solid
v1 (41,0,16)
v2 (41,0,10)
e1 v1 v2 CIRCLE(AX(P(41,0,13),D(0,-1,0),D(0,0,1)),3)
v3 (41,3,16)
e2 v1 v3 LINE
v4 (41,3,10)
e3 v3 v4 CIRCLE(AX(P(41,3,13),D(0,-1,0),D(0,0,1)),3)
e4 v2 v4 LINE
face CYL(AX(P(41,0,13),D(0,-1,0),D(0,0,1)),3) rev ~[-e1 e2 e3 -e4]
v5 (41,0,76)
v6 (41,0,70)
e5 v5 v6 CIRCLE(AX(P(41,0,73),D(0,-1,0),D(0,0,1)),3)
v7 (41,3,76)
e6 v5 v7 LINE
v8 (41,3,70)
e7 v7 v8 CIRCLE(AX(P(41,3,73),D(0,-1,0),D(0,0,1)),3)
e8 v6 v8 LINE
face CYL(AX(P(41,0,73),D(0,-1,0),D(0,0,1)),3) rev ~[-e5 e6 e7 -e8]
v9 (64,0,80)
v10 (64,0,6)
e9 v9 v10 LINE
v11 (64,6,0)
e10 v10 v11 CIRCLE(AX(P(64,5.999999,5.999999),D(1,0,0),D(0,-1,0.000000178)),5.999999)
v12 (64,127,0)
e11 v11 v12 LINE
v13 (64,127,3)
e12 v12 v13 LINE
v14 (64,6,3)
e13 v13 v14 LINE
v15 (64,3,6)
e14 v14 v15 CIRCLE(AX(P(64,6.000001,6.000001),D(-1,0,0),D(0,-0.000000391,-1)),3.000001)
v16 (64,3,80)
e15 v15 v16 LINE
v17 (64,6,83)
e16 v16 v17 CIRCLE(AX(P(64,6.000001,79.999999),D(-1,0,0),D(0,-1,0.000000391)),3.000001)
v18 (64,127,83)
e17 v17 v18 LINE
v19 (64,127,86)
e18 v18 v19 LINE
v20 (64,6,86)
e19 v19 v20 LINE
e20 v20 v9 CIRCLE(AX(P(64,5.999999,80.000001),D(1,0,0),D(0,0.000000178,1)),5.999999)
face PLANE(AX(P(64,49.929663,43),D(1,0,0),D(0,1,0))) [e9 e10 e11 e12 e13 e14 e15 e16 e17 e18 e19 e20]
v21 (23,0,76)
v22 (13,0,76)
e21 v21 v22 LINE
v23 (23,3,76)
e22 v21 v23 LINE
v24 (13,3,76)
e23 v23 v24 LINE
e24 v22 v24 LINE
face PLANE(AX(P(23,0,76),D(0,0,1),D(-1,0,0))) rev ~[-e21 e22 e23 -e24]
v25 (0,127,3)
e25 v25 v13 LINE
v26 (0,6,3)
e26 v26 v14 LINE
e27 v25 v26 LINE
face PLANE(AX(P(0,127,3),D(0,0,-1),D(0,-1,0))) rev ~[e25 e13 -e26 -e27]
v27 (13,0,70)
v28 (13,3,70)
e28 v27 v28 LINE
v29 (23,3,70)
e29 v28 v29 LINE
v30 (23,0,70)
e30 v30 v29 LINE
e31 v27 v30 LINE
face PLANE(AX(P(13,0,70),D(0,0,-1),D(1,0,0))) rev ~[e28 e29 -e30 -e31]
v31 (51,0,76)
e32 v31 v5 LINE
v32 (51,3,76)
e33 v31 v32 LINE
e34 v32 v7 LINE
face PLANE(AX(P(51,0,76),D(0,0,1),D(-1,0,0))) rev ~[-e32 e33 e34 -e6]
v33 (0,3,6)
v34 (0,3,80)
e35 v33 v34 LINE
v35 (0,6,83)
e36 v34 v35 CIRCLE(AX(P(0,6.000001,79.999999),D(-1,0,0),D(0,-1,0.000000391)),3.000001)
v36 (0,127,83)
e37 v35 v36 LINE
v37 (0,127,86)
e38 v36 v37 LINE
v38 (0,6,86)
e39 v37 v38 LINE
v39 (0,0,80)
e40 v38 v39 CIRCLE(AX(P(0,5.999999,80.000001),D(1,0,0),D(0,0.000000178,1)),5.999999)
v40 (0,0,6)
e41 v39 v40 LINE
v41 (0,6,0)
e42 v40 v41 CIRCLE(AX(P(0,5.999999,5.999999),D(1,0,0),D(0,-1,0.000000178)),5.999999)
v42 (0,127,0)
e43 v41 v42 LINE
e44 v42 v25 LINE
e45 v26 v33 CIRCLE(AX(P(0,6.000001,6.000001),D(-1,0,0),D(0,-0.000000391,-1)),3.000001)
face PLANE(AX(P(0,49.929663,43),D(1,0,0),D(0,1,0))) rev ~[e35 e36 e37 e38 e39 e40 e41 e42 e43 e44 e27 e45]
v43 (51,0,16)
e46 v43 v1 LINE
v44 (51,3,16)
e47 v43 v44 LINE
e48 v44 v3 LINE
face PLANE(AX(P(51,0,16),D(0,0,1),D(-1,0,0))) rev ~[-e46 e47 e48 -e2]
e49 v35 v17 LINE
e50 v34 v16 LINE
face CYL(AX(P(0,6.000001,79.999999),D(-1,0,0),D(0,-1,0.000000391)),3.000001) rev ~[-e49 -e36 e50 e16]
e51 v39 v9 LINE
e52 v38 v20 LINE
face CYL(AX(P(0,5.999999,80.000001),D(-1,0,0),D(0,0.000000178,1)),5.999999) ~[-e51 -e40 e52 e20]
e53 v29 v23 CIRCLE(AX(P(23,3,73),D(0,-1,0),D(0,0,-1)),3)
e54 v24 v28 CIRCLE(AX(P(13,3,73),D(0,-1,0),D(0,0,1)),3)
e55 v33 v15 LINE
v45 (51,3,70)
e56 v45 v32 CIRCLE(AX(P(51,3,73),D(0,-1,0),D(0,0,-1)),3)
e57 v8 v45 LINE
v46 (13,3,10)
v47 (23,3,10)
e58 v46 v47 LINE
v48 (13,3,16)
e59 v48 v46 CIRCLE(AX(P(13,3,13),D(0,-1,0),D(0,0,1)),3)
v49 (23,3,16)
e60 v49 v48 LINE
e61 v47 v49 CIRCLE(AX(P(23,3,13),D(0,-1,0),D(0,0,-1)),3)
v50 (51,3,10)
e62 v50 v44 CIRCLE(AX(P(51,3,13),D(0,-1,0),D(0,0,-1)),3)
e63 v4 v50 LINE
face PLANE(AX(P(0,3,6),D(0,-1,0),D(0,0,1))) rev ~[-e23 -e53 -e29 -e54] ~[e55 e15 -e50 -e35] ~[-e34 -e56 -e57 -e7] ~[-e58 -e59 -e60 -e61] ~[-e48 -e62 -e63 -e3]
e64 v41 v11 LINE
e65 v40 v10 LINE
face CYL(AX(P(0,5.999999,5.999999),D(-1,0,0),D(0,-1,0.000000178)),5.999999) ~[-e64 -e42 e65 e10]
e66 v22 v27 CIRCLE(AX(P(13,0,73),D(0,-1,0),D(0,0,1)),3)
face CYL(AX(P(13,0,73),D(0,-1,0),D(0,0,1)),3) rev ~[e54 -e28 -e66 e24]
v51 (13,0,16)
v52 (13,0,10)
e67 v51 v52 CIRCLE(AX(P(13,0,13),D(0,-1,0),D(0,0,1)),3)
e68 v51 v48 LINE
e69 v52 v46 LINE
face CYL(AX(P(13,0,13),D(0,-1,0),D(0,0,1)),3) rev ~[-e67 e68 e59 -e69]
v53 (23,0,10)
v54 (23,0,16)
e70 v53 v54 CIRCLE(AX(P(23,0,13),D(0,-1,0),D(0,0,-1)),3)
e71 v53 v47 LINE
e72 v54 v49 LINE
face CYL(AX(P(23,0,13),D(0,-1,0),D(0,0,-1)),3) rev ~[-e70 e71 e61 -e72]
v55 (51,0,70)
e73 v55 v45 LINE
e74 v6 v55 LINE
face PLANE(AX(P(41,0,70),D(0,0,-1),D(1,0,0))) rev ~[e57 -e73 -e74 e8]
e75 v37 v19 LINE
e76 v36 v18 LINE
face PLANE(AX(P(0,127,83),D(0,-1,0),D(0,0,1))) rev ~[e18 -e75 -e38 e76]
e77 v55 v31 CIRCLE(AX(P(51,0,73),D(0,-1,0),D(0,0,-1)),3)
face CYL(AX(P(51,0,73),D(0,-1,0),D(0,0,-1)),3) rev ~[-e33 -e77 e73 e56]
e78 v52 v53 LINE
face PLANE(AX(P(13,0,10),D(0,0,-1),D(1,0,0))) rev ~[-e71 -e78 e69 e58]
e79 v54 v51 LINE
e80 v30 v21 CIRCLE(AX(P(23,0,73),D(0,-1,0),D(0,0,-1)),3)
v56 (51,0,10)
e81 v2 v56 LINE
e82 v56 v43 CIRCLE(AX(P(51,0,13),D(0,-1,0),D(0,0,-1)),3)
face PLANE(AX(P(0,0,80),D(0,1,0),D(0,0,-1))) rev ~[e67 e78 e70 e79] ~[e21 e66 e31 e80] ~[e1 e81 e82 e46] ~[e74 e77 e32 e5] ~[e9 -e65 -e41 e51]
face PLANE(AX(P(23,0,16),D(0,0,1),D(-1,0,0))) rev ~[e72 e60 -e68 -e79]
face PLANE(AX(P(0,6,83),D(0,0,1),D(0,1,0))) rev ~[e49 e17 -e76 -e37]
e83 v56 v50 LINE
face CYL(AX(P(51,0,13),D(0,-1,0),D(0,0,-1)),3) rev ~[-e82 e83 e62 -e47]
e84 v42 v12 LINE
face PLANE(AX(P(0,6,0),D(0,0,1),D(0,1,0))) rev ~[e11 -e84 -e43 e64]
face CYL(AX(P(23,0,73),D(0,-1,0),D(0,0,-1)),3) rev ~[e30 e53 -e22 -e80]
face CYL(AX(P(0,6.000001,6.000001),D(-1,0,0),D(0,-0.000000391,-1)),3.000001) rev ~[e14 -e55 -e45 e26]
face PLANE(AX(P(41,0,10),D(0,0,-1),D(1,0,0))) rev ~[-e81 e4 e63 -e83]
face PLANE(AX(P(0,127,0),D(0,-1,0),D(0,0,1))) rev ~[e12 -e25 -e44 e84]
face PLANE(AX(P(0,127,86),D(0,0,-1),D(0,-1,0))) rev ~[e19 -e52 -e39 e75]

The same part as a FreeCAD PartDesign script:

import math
import FreeCAD as App
import Part
import Sketcher

V = App.Vector
Q = App.Units.Quantity

doc = App.newDocument("Part")
body = doc.addObject("PartDesign::Body", "Body")

# Sketch on YZ plane
sketch1 = body.newObject("Sketcher::SketchObject", "Sketch")
sketch1.AttachmentSupport = (doc.getObject("YZ_Plane"), [""])
sketch1.MapMode = "FlatFace"
sketch1.addGeometry(Part.LineSegment(V(0, 80, 0), V(0, 6, 0)), False)
sketch1.addGeometry(Part.ArcOfCircle(Part.Circle(V(5.999999, 5.999999, 0), V(0, 0, 1), 5.999999), math.radians(179.99999), math.radians(270.00001)), False)
sketch1.addGeometry(Part.LineSegment(V(6, 0, 0), V(127, 0, 0)), False)
sketch1.addGeometry(Part.LineSegment(V(127, 0, 0), V(127, 3, 0)), False)
sketch1.addGeometry(Part.LineSegment(V(127, 3, 0), V(6, 3, 0)), False)
sketch1.addGeometry(Part.ArcOfCircle(Part.Circle(V(6.000001, 6.000001, 0), V(0, 0, 1), 3.000001), math.radians(-179.999978), math.radians(-90.000022)), False)
sketch1.addGeometry(Part.LineSegment(V(3, 6, 0), V(3, 80, 0)), False)
sketch1.addGeometry(Part.ArcOfCircle(Part.Circle(V(6.000001, 79.999999, 0), V(0, 0, 1), 3.000001), math.radians(90.000022), math.radians(179.999978)), False)
sketch1.addGeometry(Part.LineSegment(V(6, 83, 0), V(127, 83, 0)), False)
sketch1.addGeometry(Part.LineSegment(V(127, 83, 0), V(127, 86, 0)), False)
sketch1.addGeometry(Part.LineSegment(V(127, 86, 0), V(6, 86, 0)), False)
sketch1.addGeometry(Part.ArcOfCircle(Part.Circle(V(5.999999, 80.000001, 0), V(0, 0, 1), 5.999999), math.radians(89.99999), math.radians(180.00001)), False)
sketch1.addConstraint(Sketcher.Constraint("Tangent", 0, 2, 1, 1))
sketch1.addConstraint(Sketcher.Constraint("Tangent", 1, 2, 2, 1))
sketch1.addConstraint(Sketcher.Constraint("Coincident", 2, 2, 3, 1))
sketch1.addConstraint(Sketcher.Constraint("Coincident", 3, 2, 4, 1))
sketch1.addConstraint(Sketcher.Constraint("Tangent", 4, 2, 5, 2))
sketch1.addConstraint(Sketcher.Constraint("Tangent", 5, 1, 6, 1))
sketch1.addConstraint(Sketcher.Constraint("Tangent", 6, 2, 7, 2))
sketch1.addConstraint(Sketcher.Constraint("Tangent", 7, 1, 8, 1))
sketch1.addConstraint(Sketcher.Constraint("Coincident", 8, 2, 9, 1))
sketch1.addConstraint(Sketcher.Constraint("Coincident", 9, 2, 10, 1))
sketch1.addConstraint(Sketcher.Constraint("Tangent", 10, 2, 11, 1))
sketch1.addConstraint(Sketcher.Constraint("Tangent", 11, 2, 0, 1))
sketch1.addConstraint(Sketcher.Constraint("Vertical", 0))
sketch1.addConstraint(Sketcher.Constraint("Horizontal", 2))
sketch1.addConstraint(Sketcher.Constraint("Vertical", 3))
sketch1.addConstraint(Sketcher.Constraint("Horizontal", 4))
sketch1.addConstraint(Sketcher.Constraint("Vertical", 6))
sketch1.addConstraint(Sketcher.Constraint("Horizontal", 8))
sketch1.addConstraint(Sketcher.Constraint("Vertical", 9))
sketch1.addConstraint(Sketcher.Constraint("Horizontal", 10))
sketch1.addConstraint(Sketcher.Constraint("Coincident", 5, 3, 1, 3))
sketch1.addConstraint(Sketcher.Constraint("Coincident", 11, 3, 7, 3))
sketch1.addConstraint(Sketcher.Constraint("Equal", 5, 7))
sketch1.addConstraint(Sketcher.Constraint("PointOnObject", 0, 2, -2))
sketch1.addConstraint(Sketcher.Constraint("PointOnObject", 1, 2, -1))
sketch1.addConstraint(Sketcher.Constraint("Vertical", 3, 2, 8, 2))
sketch1.addConstraint(Sketcher.Constraint("Radius", 1, Q("5.999999 mm")))
sketch1.addConstraint(Sketcher.Constraint("Radius", 5, Q("3.000001 mm")))
sketch1.addConstraint(Sketcher.Constraint("DistanceX", 2, 1, 2, 2, Q("121 mm")))
sketch1.addConstraint(Sketcher.Constraint("DistanceY", 0, 2, 0, 1, Q("74 mm")))
pad1 = body.newObject("PartDesign::Pad", "Pad")
pad1.Profile = sketch1
pad1.Length = 64

# Sketch on XZ plane
sketch2 = body.newObject("Sketcher::SketchObject", "Sketch001")
sketch2.AttachmentSupport = (doc.getObject("XZ_Plane"), [""])
sketch2.MapMode = "FlatFace"
sketch2.addGeometry(Part.ArcOfCircle(Part.Circle(V(13, 73, 0), V(0, 0, 1), 3), math.radians(90), math.radians(270)), False)
sketch2.addGeometry(Part.LineSegment(V(13, 70, 0), V(23, 70, 0)), False)
sketch2.addGeometry(Part.ArcOfCircle(Part.Circle(V(23, 73, 0), V(0, 0, 1), 3), math.radians(-90), math.radians(90)), False)
sketch2.addGeometry(Part.LineSegment(V(23, 76, 0), V(13, 76, 0)), False)
sketch2.addGeometry(Part.LineSegment(V(51, 76, 0), V(41, 76, 0)), False)
sketch2.addGeometry(Part.ArcOfCircle(Part.Circle(V(41, 73, 0), V(0, 0, 1), 3), math.radians(90), math.radians(270)), False)
sketch2.addGeometry(Part.LineSegment(V(41, 70, 0), V(51, 70, 0)), False)
sketch2.addGeometry(Part.ArcOfCircle(Part.Circle(V(51, 73, 0), V(0, 0, 1), 3), math.radians(-90), math.radians(90)), False)
sketch2.addGeometry(Part.ArcOfCircle(Part.Circle(V(41, 13, 0), V(0, 0, 1), 3), math.radians(90), math.radians(270)), False)
sketch2.addGeometry(Part.LineSegment(V(41, 10, 0), V(51, 10, 0)), False)
sketch2.addGeometry(Part.ArcOfCircle(Part.Circle(V(51, 13, 0), V(0, 0, 1), 3), math.radians(-90), math.radians(90)), False)
sketch2.addGeometry(Part.LineSegment(V(51, 16, 0), V(41, 16, 0)), False)
sketch2.addGeometry(Part.LineSegment(V(23, 16, 0), V(13, 16, 0)), False)
sketch2.addGeometry(Part.ArcOfCircle(Part.Circle(V(13, 13, 0), V(0, 0, 1), 3), math.radians(90), math.radians(270)), False)
sketch2.addGeometry(Part.LineSegment(V(13, 10, 0), V(23, 10, 0)), False)
sketch2.addGeometry(Part.ArcOfCircle(Part.Circle(V(23, 13, 0), V(0, 0, 1), 3), math.radians(-90), math.radians(90)), False)
sketch2.addConstraint(Sketcher.Constraint("Tangent", 0, 2, 1, 1))
sketch2.addConstraint(Sketcher.Constraint("Tangent", 1, 2, 2, 1))
sketch2.addConstraint(Sketcher.Constraint("Tangent", 2, 2, 3, 1))
sketch2.addConstraint(Sketcher.Constraint("Tangent", 3, 2, 0, 1))
sketch2.addConstraint(Sketcher.Constraint("Tangent", 4, 2, 5, 1))
sketch2.addConstraint(Sketcher.Constraint("Tangent", 5, 2, 6, 1))
sketch2.addConstraint(Sketcher.Constraint("Tangent", 6, 2, 7, 1))
sketch2.addConstraint(Sketcher.Constraint("Tangent", 7, 2, 4, 1))
sketch2.addConstraint(Sketcher.Constraint("Tangent", 8, 2, 9, 1))
sketch2.addConstraint(Sketcher.Constraint("Tangent", 9, 2, 10, 1))
sketch2.addConstraint(Sketcher.Constraint("Tangent", 10, 2, 11, 1))
sketch2.addConstraint(Sketcher.Constraint("Tangent", 11, 2, 8, 1))
sketch2.addConstraint(Sketcher.Constraint("Tangent", 12, 2, 13, 1))
sketch2.addConstraint(Sketcher.Constraint("Tangent", 13, 2, 14, 1))
sketch2.addConstraint(Sketcher.Constraint("Tangent", 14, 2, 15, 1))
sketch2.addConstraint(Sketcher.Constraint("Tangent", 15, 2, 12, 1))
sketch2.addConstraint(Sketcher.Constraint("Horizontal", 1))
sketch2.addConstraint(Sketcher.Constraint("Horizontal", 3))
sketch2.addConstraint(Sketcher.Constraint("Horizontal", 4))
sketch2.addConstraint(Sketcher.Constraint("Horizontal", 6))
sketch2.addConstraint(Sketcher.Constraint("Horizontal", 9))
sketch2.addConstraint(Sketcher.Constraint("Horizontal", 11))
sketch2.addConstraint(Sketcher.Constraint("Horizontal", 12))
sketch2.addConstraint(Sketcher.Constraint("Horizontal", 14))
sketch2.addConstraint(Sketcher.Constraint("Equal", 2, 5))
sketch2.addConstraint(Sketcher.Constraint("Equal", 7, 8))
sketch2.addConstraint(Sketcher.Constraint("Equal", 10, 13))
sketch2.addConstraint(Sketcher.Constraint("Horizontal", 2, 3, 5, 3))
sketch2.addConstraint(Sketcher.Constraint("Horizontal", 10, 3, 13, 3))
sketch2.addConstraint(Sketcher.Constraint("Vertical", 5, 3, 8, 3))
sketch2.addConstraint(Sketcher.Constraint("Vertical", 7, 3, 10, 3))
sketch2.addConstraint(Sketcher.Constraint("Vertical", 0, 3, 13, 3))
sketch2.addConstraint(Sketcher.Constraint("Vertical", 2, 3, 15, 3))
sketch2.addConstraint(Sketcher.Constraint("Equal", 3, 4))
sketch2.addConstraint(Sketcher.Constraint("Radius", 0, Q("3 mm")))
sketch2.addConstraint(Sketcher.Constraint("DistanceX", 1, 1, 1, 2, Q("10 mm")))
sketch2.addConstraint(Sketcher.Constraint("DistanceX", -1, 1, 0, 3, Q("13 mm")))
sketch2.addConstraint(Sketcher.Constraint("DistanceY", -1, 1, 0, 3, Q("73 mm")))
sketch2.addConstraint(Sketcher.Constraint("DistanceX", -1, 1, 5, 3, Q("41 mm")))
sketch2.addConstraint(Sketcher.Constraint("DistanceY", -1, 1, 8, 3, Q("13 mm")))
pocket1 = body.newObject("PartDesign::Pocket", "Pocket")
pocket1.Profile = sketch2
pocket1.Type = "ThroughAll"

doc.recompute()
